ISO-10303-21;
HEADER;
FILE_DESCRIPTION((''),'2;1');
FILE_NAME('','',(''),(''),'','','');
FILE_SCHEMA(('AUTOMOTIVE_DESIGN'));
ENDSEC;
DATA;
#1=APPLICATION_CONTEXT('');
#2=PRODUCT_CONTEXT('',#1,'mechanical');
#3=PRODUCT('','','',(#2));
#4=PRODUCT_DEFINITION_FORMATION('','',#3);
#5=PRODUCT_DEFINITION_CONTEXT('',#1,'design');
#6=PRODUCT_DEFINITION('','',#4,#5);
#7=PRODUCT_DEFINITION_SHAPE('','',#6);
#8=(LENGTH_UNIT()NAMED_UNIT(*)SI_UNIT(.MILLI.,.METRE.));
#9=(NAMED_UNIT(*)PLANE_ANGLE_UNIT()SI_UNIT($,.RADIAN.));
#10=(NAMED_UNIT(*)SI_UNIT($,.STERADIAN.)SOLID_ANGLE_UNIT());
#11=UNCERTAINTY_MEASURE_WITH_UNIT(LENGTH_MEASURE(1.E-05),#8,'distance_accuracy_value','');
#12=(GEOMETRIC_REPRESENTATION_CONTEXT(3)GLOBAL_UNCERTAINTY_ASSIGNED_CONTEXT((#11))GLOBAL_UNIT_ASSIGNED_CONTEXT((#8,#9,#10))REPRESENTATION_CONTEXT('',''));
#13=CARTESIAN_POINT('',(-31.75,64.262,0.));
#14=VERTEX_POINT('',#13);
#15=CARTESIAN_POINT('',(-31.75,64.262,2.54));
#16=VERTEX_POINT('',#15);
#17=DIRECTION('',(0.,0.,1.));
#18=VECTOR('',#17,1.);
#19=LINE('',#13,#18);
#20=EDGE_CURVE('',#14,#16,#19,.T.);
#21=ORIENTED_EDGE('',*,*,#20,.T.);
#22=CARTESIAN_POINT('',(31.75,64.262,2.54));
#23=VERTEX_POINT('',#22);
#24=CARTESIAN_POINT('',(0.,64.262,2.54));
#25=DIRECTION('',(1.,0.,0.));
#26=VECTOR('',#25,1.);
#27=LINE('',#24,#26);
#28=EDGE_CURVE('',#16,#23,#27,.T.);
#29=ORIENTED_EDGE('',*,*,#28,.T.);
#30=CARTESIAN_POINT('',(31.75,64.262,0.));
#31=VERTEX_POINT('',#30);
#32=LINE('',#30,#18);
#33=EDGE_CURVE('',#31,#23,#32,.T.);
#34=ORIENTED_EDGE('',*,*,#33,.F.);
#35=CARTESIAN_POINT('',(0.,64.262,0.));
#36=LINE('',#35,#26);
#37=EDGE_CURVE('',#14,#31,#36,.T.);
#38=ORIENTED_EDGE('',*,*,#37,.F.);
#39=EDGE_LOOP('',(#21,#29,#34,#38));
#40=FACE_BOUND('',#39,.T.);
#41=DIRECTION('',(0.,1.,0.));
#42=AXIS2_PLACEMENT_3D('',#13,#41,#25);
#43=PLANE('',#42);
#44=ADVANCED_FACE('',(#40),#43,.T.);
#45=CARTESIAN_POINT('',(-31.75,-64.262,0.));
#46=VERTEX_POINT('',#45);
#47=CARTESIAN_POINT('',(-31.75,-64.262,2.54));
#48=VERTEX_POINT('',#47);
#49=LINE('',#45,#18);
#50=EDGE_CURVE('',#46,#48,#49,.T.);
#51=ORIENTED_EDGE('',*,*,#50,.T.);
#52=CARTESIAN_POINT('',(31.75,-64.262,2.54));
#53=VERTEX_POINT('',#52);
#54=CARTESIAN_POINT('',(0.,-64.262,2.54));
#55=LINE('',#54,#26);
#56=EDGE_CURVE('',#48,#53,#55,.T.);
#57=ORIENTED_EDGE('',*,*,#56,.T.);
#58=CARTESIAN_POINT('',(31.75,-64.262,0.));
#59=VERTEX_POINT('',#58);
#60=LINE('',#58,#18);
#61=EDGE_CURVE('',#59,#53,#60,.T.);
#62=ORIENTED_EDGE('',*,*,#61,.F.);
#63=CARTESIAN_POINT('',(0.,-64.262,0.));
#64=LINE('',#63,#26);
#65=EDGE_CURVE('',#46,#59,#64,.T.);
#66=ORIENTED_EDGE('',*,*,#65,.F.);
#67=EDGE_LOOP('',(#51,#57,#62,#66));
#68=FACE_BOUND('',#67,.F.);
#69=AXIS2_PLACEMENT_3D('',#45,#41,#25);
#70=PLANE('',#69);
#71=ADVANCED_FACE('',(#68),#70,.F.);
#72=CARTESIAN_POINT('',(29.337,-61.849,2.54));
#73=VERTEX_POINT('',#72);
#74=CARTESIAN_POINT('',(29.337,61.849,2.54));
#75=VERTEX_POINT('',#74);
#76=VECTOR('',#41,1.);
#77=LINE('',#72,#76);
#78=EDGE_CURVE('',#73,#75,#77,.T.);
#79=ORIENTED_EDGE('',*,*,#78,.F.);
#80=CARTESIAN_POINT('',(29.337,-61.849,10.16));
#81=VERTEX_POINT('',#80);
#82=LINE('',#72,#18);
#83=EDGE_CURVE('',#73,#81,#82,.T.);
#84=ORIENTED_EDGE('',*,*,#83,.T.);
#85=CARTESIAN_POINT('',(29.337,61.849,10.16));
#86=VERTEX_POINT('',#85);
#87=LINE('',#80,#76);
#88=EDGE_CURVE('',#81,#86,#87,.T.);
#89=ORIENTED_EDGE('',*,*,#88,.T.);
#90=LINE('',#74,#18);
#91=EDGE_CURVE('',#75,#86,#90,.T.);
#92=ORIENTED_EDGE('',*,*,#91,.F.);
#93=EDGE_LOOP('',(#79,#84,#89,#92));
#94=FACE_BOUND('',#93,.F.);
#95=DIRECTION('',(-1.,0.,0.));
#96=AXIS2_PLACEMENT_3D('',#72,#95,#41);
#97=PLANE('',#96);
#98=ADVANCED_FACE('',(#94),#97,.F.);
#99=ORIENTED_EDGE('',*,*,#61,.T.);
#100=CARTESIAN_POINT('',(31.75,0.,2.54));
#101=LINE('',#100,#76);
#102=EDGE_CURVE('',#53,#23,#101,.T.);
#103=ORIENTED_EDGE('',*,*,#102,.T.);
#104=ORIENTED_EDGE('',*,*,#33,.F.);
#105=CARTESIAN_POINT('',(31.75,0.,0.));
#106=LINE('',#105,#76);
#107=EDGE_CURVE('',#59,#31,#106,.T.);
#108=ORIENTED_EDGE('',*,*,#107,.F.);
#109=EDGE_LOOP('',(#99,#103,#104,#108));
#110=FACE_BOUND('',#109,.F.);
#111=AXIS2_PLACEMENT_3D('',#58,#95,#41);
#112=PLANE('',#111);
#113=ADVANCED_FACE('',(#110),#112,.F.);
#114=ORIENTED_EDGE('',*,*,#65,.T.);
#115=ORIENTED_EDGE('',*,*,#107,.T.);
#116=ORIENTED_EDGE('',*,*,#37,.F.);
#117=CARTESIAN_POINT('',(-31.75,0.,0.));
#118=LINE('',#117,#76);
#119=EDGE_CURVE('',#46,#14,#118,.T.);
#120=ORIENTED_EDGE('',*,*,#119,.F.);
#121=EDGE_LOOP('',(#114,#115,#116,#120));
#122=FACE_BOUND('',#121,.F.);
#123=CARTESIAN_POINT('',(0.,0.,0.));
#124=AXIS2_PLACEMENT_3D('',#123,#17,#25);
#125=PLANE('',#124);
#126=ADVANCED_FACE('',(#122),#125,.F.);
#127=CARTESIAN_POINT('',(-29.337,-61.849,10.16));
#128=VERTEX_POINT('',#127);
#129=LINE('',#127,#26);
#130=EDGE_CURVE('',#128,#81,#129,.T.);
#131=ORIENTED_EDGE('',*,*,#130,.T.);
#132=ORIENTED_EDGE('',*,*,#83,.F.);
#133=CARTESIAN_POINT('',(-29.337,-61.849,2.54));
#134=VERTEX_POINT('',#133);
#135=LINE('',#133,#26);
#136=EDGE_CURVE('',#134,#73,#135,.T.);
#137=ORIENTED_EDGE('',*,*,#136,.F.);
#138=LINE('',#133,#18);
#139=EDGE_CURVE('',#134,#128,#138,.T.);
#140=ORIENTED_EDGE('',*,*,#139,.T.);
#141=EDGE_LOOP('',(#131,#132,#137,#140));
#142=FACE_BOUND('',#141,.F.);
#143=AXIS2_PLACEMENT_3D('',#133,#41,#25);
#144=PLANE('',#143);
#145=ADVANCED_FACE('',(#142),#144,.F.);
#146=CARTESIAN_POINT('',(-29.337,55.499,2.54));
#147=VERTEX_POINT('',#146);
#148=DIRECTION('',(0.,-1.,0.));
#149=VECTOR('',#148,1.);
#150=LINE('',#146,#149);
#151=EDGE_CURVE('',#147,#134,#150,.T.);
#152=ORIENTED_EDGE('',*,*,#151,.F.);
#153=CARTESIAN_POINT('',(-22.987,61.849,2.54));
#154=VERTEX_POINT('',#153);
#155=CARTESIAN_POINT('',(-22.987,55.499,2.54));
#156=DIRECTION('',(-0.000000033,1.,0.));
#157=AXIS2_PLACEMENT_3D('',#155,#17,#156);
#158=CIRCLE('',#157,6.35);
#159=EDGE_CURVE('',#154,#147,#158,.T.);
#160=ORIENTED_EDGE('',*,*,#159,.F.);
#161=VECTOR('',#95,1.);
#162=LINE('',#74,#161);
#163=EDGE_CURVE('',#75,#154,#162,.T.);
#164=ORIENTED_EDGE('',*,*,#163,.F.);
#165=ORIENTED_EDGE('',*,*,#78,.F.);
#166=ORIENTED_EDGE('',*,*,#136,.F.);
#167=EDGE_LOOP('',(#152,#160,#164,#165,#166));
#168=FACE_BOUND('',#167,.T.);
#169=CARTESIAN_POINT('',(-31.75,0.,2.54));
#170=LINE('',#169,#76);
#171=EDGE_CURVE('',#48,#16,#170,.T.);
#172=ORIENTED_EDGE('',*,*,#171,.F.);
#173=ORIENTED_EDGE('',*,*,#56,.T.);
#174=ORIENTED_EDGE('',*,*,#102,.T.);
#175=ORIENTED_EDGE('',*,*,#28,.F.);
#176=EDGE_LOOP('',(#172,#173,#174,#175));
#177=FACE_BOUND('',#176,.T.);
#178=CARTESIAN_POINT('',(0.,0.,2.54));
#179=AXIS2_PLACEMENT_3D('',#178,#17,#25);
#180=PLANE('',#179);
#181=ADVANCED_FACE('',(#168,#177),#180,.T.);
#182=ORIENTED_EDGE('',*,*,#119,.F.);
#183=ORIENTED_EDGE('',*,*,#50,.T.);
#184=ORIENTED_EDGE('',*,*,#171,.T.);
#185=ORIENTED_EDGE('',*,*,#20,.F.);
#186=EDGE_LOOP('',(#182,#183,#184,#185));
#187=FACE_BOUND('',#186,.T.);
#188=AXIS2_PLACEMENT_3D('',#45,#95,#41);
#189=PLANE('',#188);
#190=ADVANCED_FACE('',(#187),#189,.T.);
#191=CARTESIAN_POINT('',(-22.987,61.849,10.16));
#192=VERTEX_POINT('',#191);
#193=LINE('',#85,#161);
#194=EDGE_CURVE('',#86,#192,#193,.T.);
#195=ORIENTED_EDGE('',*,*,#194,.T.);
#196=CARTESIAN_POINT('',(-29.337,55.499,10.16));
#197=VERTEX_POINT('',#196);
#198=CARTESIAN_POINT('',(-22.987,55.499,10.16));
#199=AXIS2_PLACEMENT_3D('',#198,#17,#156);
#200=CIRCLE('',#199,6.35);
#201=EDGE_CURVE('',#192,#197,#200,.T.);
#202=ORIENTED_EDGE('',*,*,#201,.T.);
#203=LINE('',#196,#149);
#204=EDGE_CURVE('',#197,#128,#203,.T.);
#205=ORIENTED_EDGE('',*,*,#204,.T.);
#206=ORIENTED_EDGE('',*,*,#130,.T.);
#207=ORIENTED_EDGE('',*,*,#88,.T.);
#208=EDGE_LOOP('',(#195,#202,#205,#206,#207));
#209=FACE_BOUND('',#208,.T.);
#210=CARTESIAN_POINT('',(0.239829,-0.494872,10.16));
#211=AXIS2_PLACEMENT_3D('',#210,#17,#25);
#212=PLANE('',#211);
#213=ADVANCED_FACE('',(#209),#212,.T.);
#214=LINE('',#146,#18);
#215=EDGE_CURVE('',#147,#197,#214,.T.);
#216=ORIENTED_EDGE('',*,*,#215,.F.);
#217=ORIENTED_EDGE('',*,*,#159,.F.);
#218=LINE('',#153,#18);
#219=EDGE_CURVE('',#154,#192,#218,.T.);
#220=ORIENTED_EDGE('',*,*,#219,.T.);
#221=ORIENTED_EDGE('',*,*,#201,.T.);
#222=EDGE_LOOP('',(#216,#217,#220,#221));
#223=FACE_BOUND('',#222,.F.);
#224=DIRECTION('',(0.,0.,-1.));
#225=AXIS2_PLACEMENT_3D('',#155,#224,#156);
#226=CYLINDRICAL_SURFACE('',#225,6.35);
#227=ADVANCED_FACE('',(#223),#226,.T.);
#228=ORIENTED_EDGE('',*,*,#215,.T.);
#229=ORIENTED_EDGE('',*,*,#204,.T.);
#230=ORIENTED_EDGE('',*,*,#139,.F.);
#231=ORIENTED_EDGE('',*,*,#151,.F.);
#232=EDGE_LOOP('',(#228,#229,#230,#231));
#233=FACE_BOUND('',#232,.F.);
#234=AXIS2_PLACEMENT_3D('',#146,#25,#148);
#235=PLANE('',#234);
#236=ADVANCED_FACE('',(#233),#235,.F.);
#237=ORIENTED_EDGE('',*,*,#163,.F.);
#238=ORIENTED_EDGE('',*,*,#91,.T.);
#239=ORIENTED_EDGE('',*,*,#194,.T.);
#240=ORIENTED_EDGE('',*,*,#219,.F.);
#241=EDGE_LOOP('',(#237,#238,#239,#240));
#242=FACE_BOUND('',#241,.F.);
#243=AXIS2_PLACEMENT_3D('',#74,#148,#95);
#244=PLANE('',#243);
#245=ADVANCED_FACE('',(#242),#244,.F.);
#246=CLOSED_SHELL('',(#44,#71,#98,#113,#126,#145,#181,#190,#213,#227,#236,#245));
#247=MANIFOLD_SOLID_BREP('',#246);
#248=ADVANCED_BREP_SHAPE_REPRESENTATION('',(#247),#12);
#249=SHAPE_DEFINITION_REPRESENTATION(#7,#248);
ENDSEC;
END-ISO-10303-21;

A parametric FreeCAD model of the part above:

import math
import FreeCAD as App
import Part
import Sketcher
from FreeCAD import Vector
Q = App.Units.Quantity


def add_polygon(sketch, points):
    """Adds a closed chain of lines whose ends are joined by coincident constraints."""
    first, n = sketch.GeometryCount, len(points)
    for a, b in zip(points, points[1:] + points[:1]):
        sketch.addGeometry(Part.LineSegment(App.Vector(*a, 0), App.Vector(*b, 0)), False)
    for i in range(n):
        sketch.addConstraint(Sketcher.Constraint("Coincident", first + i, 2, first + (i + 1) % n, 1))

doc = App.newDocument("Part")
body = doc.addObject("PartDesign::Body", "Body")

sketch1 = doc.addObject("Sketcher::SketchObject", "Sketch")
body.addObject(sketch1)
sketch1.AttachmentSupport = (doc.XY_Plane, [""])
sketch1.MapMode = "FlatFace"
add_polygon(sketch1, [(-32, 64), (-32, -64), (32, -64), (32, 64)])
sketch1.addConstraint([
    Sketcher.Constraint("Vertical", 0),
    Sketcher.Constraint("Horizontal", 1),
    Sketcher.Constraint("Vertical", 2),
    Sketcher.Constraint("Horizontal", 3),
    Sketcher.Constraint("Symmetric", 0, 2, 2, 2, -1, 1),
    Sketcher.Constraint("DistanceX", 1, 1, 1, 2, Q("2.5 in")),
    Sketcher.Constraint("DistanceY", 0, 2, 0, 1, Q("5.06 in")),
])
pad1 = doc.addObject("PartDesign::Pad", "Pad")
body.addObject(pad1)
pad1.Profile = sketch1
pad1.Length = Q("0.1 in")

sketch2 = doc.addObject("Sketcher::SketchObject", "Sketch001")
body.addObject(sketch2)
sketch2.AttachmentSupport = (doc.XY_Plane, [""])
sketch2.MapMode = "FlatFace"
sketch2.AttachmentOffset = App.Placement(Vector(0, 0, 0.1 * 25.4), App.Rotation())
sketch2.addGeometry([
    Part.LineSegment(Vector(-29, -62, 0), Vector(29, -62, 0)),
    Part.LineSegment(Vector(29, -62, 0), Vector(29, 62, 0)),
    Part.LineSegment(Vector(29, 62, 0), Vector(-23, 62, 0)),
    Part.ArcOfCircle(Part.Circle(Vector(-23, 55, 0), Vector(0, 0, 1), 6), math.radians(90), math.radians(180)),
    Part.LineSegment(Vector(-29, 55, 0), Vector(-29, -62, 0)),
], False)
sketch2.addConstraint([
    Sketcher.Constraint("Coincident", 0, 2, 1, 1),
    Sketcher.Constraint("Coincident", 1, 2, 2, 1),
    Sketcher.Constraint("Tangent", 2, 2, 3, 1),
    Sketcher.Constraint("Tangent", 3, 2, 4, 1),
    Sketcher.Constraint("Coincident", 4, 2, 0, 1),
    Sketcher.Constraint("Horizontal", 0),
    Sketcher.Constraint("Vertical", 1),
    Sketcher.Constraint("Horizontal", 2),
    Sketcher.Constraint("Vertical", 4),
    Sketcher.Constraint("Symmetric", 1, 2, 4, 2, -1, 1),
    Sketcher.Constraint("Radius", 3, Q("0.25 in")),
    Sketcher.Constraint("DistanceX", 0, 1, 0, 2, Q("2.31 in")),
    Sketcher.Constraint("DistanceY", 1, 1, 1, 2, Q("4.87 in")),
])
pad2 = doc.addObject("PartDesign::Pad", "Pad001")
body.addObject(pad2)
pad2.Profile = sketch2
pad2.Length = Q("0.3 in")

doc.recompute()
